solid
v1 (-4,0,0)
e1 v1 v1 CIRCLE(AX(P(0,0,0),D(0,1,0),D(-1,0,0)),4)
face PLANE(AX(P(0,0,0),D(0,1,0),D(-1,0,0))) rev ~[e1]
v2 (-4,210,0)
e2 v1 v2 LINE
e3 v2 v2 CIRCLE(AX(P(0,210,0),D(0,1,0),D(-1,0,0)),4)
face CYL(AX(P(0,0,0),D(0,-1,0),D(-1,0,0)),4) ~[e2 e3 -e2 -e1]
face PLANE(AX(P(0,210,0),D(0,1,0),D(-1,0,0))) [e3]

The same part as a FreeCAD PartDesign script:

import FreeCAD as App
import Part
import Sketcher

V = App.Vector

doc = App.newDocument("Part")
params = doc.addObject("Spreadsheet::Sheet", "Params")
for row, (alias, value) in enumerate([
    ("sketch1_diameter", "8 mm"),
    ("pad1_length", "210 mm"),
], start=1):
    params.set(f"A{row}", alias)
    params.set(f"B{row}", "=" + value)
    params.setAlias(f"B{row}", alias)

body = doc.addObject("PartDesign::Body", "Body")

sketch1 = body.newObject("Sketcher::SketchObject", "Sketch")
sketch1.AttachmentSupport = (doc.getObject("XZ_Plane"), [""])
sketch1.MapMode = "FlatFace"
sketch1.addGeometry(Part.Circle(V(0, 0, 0), V(0, 0, 1), 4), False)
sketch1.addConstraint([
    Sketcher.Constraint("Coincident", 0, 3, -1, 1),
    Sketcher.Constraint("Diameter", 0, 8.0),
])
sketch1.setExpression("Constraints[1]", "Params.sketch1_diameter")
pad1 = body.newObject("PartDesign::Pad", "Pad")
pad1.Profile = sketch1
pad1.setExpression("Length", "Params.pad1_length")
pad1.Reversed = True

doc.recompute()
